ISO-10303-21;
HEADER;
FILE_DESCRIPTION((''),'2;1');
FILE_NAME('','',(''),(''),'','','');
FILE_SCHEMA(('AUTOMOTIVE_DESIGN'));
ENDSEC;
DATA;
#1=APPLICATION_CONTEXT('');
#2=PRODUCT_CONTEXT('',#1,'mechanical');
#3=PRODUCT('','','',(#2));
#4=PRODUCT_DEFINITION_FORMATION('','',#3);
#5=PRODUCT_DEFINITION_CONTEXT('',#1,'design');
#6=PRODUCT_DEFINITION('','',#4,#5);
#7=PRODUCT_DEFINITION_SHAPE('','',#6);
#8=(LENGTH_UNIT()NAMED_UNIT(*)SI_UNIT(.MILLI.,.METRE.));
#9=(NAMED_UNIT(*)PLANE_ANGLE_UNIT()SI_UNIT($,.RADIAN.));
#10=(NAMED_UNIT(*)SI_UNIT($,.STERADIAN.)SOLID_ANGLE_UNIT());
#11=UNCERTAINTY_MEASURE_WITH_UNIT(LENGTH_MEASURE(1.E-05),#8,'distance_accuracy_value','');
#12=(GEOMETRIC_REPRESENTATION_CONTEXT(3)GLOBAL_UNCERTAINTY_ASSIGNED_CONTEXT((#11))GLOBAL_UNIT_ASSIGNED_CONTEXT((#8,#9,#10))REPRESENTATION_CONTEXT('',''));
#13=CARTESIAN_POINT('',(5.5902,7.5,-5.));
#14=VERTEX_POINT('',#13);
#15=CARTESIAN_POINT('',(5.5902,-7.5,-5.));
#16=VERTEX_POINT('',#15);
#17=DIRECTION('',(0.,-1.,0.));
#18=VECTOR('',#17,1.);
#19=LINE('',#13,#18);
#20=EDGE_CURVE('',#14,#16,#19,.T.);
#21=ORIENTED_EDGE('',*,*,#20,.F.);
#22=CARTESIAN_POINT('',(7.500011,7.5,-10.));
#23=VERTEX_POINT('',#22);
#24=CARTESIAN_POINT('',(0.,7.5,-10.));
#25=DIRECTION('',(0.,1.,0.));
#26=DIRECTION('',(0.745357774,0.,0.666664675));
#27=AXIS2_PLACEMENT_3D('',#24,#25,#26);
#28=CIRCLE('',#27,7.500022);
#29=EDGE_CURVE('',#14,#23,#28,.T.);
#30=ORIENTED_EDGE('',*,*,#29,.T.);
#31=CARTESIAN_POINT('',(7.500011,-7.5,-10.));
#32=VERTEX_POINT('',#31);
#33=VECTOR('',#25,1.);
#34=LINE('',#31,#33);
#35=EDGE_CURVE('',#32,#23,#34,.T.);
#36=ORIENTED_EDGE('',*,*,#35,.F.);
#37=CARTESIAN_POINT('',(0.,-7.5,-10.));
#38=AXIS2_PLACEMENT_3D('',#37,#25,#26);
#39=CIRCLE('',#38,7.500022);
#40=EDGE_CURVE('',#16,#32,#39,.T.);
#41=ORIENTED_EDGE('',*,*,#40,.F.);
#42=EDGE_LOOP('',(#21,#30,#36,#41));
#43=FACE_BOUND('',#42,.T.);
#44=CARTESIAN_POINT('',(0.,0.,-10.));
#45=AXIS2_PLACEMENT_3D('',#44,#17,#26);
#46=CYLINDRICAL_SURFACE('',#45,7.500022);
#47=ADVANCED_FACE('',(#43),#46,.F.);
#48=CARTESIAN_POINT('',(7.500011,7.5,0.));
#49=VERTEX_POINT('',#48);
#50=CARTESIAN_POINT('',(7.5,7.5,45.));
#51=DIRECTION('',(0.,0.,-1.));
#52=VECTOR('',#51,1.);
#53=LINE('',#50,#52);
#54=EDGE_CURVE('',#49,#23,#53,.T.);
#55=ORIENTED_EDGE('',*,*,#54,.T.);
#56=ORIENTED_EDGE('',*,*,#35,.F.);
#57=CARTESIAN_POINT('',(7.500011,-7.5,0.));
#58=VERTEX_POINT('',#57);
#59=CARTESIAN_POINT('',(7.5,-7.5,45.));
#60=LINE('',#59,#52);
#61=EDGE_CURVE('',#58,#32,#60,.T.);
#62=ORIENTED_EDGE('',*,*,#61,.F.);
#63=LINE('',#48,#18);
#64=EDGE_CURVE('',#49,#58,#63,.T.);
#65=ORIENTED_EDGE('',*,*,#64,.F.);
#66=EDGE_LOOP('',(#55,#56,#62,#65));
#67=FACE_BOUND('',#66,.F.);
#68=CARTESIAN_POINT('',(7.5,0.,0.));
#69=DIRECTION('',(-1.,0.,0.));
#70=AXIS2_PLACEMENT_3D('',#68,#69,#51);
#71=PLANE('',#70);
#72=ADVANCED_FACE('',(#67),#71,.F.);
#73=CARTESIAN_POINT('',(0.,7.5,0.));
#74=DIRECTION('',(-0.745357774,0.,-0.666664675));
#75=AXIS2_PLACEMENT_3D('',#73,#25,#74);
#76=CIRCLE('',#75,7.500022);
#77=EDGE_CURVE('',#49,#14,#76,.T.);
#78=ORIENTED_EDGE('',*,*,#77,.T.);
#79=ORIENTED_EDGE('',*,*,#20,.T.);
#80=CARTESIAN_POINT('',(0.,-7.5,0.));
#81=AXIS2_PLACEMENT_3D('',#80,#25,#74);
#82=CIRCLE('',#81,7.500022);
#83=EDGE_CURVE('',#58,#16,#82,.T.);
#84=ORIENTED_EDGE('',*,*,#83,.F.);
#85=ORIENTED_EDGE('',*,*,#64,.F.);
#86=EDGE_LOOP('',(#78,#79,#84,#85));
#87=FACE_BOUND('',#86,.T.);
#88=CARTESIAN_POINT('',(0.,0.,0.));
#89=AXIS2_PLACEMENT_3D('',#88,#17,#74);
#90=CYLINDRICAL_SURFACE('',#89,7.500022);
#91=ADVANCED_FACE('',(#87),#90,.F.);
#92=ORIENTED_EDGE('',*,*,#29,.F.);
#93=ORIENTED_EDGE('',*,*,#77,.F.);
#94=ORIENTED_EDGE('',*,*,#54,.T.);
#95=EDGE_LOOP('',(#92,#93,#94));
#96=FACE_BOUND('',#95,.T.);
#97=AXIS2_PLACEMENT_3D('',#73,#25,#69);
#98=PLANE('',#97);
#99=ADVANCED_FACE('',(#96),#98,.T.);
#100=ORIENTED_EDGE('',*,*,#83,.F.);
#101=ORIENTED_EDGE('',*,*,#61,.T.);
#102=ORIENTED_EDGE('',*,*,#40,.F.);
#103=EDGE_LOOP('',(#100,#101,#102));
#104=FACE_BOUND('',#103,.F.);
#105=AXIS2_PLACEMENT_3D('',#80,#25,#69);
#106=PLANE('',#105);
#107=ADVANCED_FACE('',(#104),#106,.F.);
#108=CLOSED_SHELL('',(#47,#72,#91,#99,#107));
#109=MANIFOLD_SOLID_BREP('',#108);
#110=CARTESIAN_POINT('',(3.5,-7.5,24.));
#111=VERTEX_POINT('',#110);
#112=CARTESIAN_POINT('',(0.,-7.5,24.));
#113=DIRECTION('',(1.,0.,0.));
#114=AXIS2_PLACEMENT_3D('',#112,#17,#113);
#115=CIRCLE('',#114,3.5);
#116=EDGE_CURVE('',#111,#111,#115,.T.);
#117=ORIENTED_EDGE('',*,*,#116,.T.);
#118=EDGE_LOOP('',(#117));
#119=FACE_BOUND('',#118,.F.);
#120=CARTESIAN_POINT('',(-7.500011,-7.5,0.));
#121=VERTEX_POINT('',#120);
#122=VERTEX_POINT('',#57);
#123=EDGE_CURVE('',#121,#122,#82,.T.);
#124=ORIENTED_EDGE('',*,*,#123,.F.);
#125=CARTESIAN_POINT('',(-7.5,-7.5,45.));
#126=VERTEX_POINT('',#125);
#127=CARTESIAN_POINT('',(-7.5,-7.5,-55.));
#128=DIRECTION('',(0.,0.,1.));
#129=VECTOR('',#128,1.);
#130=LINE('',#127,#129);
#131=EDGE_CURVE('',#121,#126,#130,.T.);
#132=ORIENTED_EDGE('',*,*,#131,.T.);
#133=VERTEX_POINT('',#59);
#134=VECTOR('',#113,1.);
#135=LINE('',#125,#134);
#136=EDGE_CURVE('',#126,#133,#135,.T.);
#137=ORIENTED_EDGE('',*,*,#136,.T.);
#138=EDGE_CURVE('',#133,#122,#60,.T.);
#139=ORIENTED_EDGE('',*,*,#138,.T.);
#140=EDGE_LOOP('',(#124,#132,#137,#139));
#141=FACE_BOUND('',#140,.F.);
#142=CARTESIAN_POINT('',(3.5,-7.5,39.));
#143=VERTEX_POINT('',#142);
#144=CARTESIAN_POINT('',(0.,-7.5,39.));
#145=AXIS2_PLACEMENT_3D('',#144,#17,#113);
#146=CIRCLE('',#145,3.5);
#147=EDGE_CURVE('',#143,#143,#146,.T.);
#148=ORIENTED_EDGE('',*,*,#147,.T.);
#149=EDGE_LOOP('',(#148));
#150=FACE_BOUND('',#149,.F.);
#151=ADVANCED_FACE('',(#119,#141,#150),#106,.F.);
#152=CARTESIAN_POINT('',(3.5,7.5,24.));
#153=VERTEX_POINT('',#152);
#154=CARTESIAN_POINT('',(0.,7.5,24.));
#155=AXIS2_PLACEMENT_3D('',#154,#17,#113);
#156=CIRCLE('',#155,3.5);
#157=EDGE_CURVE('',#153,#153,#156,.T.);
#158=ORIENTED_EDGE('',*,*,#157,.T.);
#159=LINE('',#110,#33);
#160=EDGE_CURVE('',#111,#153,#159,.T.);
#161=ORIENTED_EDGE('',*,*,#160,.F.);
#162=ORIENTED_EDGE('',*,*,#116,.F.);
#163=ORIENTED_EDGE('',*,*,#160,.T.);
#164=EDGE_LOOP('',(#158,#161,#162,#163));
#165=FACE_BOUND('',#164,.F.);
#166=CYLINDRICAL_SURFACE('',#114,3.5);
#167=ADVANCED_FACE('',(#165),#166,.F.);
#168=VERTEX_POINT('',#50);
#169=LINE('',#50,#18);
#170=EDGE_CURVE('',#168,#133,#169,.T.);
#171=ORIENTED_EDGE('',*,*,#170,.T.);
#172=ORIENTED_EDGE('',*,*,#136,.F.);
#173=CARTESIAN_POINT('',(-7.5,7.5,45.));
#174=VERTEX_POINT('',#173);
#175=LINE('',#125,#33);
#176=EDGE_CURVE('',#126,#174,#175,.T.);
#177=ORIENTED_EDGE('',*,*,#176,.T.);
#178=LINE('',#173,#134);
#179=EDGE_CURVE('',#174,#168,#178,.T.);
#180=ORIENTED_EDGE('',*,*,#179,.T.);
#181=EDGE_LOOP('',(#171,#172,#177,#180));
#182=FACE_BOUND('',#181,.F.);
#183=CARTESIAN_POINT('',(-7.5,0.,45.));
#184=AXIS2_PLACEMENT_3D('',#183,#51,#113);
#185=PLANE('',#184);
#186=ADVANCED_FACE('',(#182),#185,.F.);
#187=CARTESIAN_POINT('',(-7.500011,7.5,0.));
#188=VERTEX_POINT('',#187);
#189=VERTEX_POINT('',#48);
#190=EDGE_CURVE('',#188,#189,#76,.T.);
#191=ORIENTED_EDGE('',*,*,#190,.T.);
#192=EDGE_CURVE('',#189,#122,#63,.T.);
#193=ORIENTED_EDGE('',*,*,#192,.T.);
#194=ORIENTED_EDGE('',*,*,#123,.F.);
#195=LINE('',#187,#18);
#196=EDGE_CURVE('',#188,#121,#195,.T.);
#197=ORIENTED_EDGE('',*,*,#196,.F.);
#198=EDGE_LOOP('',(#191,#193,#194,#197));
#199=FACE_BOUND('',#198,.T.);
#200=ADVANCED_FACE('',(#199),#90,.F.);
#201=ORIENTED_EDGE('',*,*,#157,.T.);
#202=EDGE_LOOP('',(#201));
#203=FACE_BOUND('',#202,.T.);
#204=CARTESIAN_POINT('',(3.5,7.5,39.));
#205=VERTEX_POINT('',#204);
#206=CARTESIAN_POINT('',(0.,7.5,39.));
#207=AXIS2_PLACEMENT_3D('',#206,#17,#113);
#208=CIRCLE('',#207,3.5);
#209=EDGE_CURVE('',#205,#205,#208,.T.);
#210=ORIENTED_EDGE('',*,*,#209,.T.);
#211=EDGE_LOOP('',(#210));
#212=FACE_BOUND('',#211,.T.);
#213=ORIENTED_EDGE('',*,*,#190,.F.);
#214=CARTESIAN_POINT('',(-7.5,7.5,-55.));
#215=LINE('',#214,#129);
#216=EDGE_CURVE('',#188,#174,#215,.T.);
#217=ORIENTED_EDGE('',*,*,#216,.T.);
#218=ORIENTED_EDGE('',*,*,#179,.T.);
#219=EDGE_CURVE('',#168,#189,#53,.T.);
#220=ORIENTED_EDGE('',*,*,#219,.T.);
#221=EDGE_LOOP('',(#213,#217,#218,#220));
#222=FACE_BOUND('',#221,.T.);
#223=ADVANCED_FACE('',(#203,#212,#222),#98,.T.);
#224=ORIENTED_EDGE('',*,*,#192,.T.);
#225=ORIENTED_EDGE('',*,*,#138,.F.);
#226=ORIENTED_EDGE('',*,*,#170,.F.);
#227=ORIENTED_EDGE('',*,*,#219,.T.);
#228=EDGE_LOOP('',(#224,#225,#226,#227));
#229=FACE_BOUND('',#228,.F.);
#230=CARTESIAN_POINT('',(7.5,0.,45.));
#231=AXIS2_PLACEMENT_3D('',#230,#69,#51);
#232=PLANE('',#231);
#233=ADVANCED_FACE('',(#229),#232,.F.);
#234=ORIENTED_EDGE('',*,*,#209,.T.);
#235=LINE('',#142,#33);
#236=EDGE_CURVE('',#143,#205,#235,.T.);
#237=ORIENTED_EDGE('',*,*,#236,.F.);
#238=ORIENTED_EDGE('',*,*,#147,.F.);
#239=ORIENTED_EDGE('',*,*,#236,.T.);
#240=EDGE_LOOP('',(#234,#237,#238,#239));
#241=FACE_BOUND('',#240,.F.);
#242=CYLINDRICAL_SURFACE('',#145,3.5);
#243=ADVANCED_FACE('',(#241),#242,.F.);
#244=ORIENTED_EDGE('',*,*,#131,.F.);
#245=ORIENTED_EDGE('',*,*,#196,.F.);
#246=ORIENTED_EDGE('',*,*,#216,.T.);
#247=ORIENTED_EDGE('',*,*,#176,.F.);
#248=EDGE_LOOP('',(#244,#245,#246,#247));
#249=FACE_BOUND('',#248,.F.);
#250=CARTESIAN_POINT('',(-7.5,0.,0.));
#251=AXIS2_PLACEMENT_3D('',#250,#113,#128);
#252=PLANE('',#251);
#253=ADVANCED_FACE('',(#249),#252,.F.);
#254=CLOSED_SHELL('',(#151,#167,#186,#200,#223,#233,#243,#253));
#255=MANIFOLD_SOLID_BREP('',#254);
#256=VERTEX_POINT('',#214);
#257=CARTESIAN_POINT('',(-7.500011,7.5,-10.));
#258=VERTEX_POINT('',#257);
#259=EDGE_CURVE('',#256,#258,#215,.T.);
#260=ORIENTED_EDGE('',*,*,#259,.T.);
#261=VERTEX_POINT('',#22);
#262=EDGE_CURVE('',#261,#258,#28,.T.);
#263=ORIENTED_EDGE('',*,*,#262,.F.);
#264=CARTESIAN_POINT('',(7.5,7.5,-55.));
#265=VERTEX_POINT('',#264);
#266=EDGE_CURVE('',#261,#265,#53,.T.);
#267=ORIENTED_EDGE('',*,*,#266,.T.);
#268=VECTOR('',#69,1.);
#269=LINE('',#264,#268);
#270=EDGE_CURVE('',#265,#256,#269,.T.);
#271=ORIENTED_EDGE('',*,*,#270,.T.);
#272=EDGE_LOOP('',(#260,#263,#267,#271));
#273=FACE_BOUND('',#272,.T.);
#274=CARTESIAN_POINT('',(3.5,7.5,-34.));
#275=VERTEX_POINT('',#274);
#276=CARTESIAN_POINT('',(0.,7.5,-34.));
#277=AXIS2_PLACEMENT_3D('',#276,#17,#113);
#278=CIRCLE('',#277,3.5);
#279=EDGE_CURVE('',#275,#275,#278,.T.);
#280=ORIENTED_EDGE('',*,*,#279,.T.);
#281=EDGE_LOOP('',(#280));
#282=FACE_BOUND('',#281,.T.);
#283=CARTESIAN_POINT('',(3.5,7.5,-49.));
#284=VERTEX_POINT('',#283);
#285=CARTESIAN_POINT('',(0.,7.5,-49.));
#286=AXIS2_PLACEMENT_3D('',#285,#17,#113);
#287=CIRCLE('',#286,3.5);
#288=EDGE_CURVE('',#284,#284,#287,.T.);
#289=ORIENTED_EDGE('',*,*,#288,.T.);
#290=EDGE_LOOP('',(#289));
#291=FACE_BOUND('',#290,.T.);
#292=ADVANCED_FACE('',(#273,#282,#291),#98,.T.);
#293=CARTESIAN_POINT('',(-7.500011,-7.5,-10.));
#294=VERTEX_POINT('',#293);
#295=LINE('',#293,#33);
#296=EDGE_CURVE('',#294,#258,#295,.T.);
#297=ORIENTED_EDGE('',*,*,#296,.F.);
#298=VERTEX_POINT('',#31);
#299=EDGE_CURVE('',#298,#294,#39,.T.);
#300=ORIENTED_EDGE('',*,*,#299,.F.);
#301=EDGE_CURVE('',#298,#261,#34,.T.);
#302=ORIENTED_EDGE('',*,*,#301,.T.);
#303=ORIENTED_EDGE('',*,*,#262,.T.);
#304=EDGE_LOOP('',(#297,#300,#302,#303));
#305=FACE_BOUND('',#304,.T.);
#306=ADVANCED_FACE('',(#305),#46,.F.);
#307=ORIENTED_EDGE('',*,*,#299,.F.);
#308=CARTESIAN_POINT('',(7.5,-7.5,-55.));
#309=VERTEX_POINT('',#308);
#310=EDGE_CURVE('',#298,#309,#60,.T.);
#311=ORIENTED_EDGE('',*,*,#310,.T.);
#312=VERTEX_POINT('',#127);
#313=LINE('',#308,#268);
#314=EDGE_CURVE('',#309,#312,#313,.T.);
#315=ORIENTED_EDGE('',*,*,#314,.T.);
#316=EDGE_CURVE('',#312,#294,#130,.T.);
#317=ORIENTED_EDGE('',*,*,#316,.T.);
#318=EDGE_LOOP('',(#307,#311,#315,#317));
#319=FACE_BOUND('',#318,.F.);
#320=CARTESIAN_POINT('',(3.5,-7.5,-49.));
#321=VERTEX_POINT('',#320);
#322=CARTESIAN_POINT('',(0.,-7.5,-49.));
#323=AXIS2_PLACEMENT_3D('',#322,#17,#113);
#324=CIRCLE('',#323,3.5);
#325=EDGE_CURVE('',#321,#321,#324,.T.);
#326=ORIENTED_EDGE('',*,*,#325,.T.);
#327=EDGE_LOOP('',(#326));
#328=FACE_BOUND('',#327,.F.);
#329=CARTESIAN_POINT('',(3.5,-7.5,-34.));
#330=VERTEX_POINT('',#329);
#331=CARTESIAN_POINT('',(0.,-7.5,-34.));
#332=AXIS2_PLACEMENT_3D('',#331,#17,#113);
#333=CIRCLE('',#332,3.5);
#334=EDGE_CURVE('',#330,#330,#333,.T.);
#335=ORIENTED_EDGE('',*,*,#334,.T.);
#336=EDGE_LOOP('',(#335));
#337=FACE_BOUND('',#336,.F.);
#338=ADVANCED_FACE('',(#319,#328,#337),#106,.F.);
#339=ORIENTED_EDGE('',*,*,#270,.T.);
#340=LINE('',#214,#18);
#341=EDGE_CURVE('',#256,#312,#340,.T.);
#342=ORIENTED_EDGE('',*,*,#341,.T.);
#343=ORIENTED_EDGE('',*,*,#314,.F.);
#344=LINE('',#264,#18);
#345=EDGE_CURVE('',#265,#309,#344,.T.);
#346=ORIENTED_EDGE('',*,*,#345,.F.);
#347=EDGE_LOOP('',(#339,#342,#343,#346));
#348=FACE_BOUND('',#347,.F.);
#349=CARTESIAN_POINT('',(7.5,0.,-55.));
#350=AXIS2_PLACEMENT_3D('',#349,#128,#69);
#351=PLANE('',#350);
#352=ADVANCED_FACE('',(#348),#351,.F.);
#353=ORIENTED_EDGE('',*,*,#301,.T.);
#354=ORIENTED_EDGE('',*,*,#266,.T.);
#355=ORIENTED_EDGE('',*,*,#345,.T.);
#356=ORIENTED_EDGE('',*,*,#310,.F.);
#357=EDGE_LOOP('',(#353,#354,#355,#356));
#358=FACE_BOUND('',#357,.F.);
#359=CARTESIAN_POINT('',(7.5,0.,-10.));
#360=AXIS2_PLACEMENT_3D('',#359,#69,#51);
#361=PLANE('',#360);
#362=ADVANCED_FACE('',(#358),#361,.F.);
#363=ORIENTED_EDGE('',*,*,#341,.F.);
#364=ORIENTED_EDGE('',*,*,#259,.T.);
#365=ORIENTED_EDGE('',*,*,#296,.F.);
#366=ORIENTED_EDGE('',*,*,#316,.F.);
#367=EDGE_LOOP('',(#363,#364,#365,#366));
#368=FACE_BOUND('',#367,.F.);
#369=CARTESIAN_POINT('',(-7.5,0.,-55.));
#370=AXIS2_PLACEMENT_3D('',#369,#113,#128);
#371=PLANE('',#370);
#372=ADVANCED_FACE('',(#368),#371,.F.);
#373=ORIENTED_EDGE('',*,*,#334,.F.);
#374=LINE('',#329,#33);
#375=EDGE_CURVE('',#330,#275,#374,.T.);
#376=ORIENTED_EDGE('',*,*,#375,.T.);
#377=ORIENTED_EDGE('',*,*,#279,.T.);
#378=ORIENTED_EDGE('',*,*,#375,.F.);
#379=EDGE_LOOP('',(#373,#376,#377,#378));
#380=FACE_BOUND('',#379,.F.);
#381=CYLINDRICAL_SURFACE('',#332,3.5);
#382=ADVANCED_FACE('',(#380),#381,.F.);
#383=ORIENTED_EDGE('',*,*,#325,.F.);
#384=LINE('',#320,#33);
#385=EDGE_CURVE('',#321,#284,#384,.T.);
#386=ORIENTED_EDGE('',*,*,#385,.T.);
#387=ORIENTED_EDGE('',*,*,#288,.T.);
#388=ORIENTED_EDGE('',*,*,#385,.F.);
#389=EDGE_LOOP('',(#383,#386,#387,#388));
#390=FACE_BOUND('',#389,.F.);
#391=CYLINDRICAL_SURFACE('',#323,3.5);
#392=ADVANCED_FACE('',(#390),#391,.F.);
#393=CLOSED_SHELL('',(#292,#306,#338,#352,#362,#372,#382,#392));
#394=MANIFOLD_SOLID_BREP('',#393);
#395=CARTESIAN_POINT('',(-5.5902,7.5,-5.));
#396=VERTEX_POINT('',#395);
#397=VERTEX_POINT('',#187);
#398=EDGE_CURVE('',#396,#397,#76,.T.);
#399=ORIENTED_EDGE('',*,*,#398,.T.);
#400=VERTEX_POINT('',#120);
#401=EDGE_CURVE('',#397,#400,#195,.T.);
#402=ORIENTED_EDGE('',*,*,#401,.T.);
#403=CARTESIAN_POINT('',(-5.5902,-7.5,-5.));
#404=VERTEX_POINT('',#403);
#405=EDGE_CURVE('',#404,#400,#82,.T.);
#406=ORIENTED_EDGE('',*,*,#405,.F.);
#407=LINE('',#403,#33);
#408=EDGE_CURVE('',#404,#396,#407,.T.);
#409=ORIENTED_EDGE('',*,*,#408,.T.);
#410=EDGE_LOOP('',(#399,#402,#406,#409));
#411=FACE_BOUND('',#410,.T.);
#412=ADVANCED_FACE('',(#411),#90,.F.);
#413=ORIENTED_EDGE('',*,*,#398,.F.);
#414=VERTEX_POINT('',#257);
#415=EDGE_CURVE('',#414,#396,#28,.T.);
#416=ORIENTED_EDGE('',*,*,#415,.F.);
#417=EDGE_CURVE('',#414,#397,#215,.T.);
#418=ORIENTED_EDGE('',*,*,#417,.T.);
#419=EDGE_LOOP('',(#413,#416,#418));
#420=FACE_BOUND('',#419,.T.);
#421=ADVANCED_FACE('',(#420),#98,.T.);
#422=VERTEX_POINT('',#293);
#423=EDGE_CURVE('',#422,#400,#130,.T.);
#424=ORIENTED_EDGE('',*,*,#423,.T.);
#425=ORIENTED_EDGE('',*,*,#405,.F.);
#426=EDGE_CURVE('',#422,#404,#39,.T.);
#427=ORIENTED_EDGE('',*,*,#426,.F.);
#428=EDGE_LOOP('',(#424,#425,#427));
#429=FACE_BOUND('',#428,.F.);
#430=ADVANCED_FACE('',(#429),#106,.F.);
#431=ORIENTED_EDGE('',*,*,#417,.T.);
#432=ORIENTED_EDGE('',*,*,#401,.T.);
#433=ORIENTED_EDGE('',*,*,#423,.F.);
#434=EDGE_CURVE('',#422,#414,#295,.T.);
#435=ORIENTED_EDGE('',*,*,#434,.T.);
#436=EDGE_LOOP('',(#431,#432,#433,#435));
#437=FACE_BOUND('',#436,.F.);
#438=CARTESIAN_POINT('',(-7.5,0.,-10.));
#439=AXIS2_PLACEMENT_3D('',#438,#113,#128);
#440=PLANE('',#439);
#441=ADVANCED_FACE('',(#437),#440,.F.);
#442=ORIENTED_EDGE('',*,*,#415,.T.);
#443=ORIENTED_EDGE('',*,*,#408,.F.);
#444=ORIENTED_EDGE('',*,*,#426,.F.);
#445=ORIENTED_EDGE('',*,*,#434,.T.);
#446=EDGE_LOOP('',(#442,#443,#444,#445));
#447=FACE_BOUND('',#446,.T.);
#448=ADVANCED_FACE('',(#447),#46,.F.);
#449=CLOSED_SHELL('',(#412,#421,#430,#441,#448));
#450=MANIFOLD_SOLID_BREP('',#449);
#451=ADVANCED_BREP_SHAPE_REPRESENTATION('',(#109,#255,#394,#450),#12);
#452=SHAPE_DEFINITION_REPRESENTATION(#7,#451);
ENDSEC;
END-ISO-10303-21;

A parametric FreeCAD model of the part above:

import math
import FreeCAD as App
import Part
import Sketcher

V = App.Vector
Q = App.Units.Quantity

doc = App.newDocument("Part")
body = doc.addObject("PartDesign::Body", "Body")
body.AllowCompound = True

# Sketch on XZ plane
sketch1 = body.newObject("Sketcher::SketchObject", "Sketch")
sketch1.AttachmentSupport = (doc.getObject("XZ_Plane"), [""])
sketch1.MapMode = "FlatFace"
sketch1.addGeometry([
    Part.ArcOfCircle(Part.Circle(V(0, 0, 0), V(0, 0, 1), 7.500022), math.radians(180), math.radians(221.810162)),  # 0
    Part.ArcOfCircle(Part.Circle(V(0, -10, 0), V(0, 0, 1), 7.500022), math.radians(138.189838), math.radians(180)),  # 1
    Part.LineSegment(V(-7.5, -10, 0), V(-7.5, 0, 0)),  # 2
    Part.ArcOfCircle(Part.Circle(V(0, 0, 0), V(0, 0, 1), 7.500022), math.radians(0), math.radians(180)),  # 3
    Part.LineSegment(V(-7.5, 0, 0), V(-7.5, 45, 0)),  # 4
    Part.LineSegment(V(-7.5, 45, 0), V(7.5, 45, 0)),  # 5
    Part.LineSegment(V(7.5, 45, 0), V(7.5, 0, 0)),  # 6
    Part.LineSegment(V(-7.5, -55, 0), V(-7.5, -10, 0)),  # 7
    Part.ArcOfCircle(Part.Circle(V(0, -10, 0), V(0, 0, 1), 7.500022), math.radians(180), math.radians(360)),  # 8
    Part.LineSegment(V(7.5, -10, 0), V(7.5, -55, 0)),  # 9
    Part.LineSegment(V(7.5, -55, 0), V(-7.5, -55, 0)),  # 10
    Part.ArcOfCircle(Part.Circle(V(0, 0, 0), V(0, 0, 1), 7.500022), math.radians(-41.810162), math.radians(0)),  # 11
    Part.LineSegment(V(7.5, 0, 0), V(7.5, -10, 0)),  # 12
    Part.ArcOfCircle(Part.Circle(V(0, -10, 0), V(0, 0, 1), 7.500022), math.radians(0), math.radians(41.810162)),  # 13
], False)
sketch1.addConstraint([
    Sketcher.Constraint("Coincident", 0, 2, 1, 1),
    Sketcher.Constraint("Tangent", 1, 2, 2, 1),
    Sketcher.Constraint("Tangent", 2, 2, 0, 1),
    Sketcher.Constraint("Tangent", 3, 2, 4, 1),
    Sketcher.Constraint("Coincident", 4, 2, 5, 1),
    Sketcher.Constraint("Coincident", 5, 2, 6, 1),
    Sketcher.Constraint("Tangent", 6, 2, 3, 1),
    Sketcher.Constraint("Tangent", 7, 2, 8, 1),
    Sketcher.Constraint("Tangent", 8, 2, 9, 1),
    Sketcher.Constraint("Coincident", 9, 2, 10, 1),
    Sketcher.Constraint("Coincident", 10, 2, 7, 1),
    Sketcher.Constraint("Tangent", 11, 2, 12, 1),
    Sketcher.Constraint("Tangent", 12, 2, 13, 1),
    Sketcher.Constraint("Coincident", 13, 2, 11, 1),
    Sketcher.Constraint("Vertical", 2),
    Sketcher.Constraint("Vertical", 4),
    Sketcher.Constraint("Horizontal", 5),
    Sketcher.Constraint("Vertical", 6),
    Sketcher.Constraint("Vertical", 7),
    Sketcher.Constraint("Vertical", 9),
    Sketcher.Constraint("Horizontal", 10),
    Sketcher.Constraint("Vertical", 12),
    Sketcher.Constraint("Coincident", 0, 3, -1, 1),
    Sketcher.Constraint("Coincident", 3, 3, -1, 1),
    Sketcher.Constraint("Coincident", 11, 3, -1, 1),
    Sketcher.Constraint("Coincident", 8, 3, 1, 3),
    Sketcher.Constraint("Coincident", 13, 3, 1, 3),
    Sketcher.Constraint("Equal", 0, 1),
    Sketcher.Constraint("Equal", 1, 3),
    Sketcher.Constraint("Equal", 3, 8),
    Sketcher.Constraint("Equal", 8, 11),
    Sketcher.Constraint("Equal", 6, 7),
    Sketcher.Constraint("Radius", 0, Q("7.5 mm")),
    Sketcher.Constraint("DistanceY", 2, 1, 2, 2, Q("10 mm")),
    Sketcher.Constraint("DistanceY", 9, 2, -1, 1, Q("55 mm")),
])
pad1 = body.newObject("PartDesign::Pad", "Pad")
pad1.Profile = sketch1
pad1.Length = 15
pad1.Midplane = True

# Sketch on XZ plane
sketch2 = body.newObject("Sketcher::SketchObject", "Sketch001")
sketch2.AttachmentSupport = (doc.getObject("XZ_Plane"), [""])
sketch2.MapMode = "FlatFace"
sketch2.AttachmentOffset = App.Placement(V(0, 0, 7.5), App.Rotation())
sketch2.addGeometry([
    Part.Circle(V(0, -49, 0), V(0, 0, 1), 3.5),
    Part.Circle(V(0, -34, 0), V(0, 0, 1), 3.5),
    Part.Circle(V(0, 24, 0), V(0, 0, 1), 3.5),
    Part.Circle(V(0, 39, 0), V(0, 0, 1), 3.5),
], False)
sketch2.addConstraint([
    Sketcher.Constraint("Equal", 0, 1),
    Sketcher.Constraint("Equal", 1, 2),
    Sketcher.Constraint("Equal", 2, 3),
    Sketcher.Constraint("PointOnObject", 0, 3, -2),
    Sketcher.Constraint("PointOnObject", 1, 3, -2),
    Sketcher.Constraint("PointOnObject", 2, 3, -2),
    Sketcher.Constraint("PointOnObject", 3, 3, -2),
    Sketcher.Constraint("Diameter", 0, Q("7 mm")),
    Sketcher.Constraint("DistanceY", 0, 3, 1, 3, Q("15 mm")),
    Sketcher.Constraint("DistanceY", 2, 3, 3, 3, Q("15 mm")),
    Sketcher.Constraint("DistanceY", 0, 3, -1, 1, Q("49 mm")),
    Sketcher.Constraint("DistanceY", -1, 1, 2, 3, Q("24 mm")),
])
pocket1 = body.newObject("PartDesign::Pocket", "Pocket")
pocket1.Profile = sketch2
pocket1.Length = 15

doc.recompute()
